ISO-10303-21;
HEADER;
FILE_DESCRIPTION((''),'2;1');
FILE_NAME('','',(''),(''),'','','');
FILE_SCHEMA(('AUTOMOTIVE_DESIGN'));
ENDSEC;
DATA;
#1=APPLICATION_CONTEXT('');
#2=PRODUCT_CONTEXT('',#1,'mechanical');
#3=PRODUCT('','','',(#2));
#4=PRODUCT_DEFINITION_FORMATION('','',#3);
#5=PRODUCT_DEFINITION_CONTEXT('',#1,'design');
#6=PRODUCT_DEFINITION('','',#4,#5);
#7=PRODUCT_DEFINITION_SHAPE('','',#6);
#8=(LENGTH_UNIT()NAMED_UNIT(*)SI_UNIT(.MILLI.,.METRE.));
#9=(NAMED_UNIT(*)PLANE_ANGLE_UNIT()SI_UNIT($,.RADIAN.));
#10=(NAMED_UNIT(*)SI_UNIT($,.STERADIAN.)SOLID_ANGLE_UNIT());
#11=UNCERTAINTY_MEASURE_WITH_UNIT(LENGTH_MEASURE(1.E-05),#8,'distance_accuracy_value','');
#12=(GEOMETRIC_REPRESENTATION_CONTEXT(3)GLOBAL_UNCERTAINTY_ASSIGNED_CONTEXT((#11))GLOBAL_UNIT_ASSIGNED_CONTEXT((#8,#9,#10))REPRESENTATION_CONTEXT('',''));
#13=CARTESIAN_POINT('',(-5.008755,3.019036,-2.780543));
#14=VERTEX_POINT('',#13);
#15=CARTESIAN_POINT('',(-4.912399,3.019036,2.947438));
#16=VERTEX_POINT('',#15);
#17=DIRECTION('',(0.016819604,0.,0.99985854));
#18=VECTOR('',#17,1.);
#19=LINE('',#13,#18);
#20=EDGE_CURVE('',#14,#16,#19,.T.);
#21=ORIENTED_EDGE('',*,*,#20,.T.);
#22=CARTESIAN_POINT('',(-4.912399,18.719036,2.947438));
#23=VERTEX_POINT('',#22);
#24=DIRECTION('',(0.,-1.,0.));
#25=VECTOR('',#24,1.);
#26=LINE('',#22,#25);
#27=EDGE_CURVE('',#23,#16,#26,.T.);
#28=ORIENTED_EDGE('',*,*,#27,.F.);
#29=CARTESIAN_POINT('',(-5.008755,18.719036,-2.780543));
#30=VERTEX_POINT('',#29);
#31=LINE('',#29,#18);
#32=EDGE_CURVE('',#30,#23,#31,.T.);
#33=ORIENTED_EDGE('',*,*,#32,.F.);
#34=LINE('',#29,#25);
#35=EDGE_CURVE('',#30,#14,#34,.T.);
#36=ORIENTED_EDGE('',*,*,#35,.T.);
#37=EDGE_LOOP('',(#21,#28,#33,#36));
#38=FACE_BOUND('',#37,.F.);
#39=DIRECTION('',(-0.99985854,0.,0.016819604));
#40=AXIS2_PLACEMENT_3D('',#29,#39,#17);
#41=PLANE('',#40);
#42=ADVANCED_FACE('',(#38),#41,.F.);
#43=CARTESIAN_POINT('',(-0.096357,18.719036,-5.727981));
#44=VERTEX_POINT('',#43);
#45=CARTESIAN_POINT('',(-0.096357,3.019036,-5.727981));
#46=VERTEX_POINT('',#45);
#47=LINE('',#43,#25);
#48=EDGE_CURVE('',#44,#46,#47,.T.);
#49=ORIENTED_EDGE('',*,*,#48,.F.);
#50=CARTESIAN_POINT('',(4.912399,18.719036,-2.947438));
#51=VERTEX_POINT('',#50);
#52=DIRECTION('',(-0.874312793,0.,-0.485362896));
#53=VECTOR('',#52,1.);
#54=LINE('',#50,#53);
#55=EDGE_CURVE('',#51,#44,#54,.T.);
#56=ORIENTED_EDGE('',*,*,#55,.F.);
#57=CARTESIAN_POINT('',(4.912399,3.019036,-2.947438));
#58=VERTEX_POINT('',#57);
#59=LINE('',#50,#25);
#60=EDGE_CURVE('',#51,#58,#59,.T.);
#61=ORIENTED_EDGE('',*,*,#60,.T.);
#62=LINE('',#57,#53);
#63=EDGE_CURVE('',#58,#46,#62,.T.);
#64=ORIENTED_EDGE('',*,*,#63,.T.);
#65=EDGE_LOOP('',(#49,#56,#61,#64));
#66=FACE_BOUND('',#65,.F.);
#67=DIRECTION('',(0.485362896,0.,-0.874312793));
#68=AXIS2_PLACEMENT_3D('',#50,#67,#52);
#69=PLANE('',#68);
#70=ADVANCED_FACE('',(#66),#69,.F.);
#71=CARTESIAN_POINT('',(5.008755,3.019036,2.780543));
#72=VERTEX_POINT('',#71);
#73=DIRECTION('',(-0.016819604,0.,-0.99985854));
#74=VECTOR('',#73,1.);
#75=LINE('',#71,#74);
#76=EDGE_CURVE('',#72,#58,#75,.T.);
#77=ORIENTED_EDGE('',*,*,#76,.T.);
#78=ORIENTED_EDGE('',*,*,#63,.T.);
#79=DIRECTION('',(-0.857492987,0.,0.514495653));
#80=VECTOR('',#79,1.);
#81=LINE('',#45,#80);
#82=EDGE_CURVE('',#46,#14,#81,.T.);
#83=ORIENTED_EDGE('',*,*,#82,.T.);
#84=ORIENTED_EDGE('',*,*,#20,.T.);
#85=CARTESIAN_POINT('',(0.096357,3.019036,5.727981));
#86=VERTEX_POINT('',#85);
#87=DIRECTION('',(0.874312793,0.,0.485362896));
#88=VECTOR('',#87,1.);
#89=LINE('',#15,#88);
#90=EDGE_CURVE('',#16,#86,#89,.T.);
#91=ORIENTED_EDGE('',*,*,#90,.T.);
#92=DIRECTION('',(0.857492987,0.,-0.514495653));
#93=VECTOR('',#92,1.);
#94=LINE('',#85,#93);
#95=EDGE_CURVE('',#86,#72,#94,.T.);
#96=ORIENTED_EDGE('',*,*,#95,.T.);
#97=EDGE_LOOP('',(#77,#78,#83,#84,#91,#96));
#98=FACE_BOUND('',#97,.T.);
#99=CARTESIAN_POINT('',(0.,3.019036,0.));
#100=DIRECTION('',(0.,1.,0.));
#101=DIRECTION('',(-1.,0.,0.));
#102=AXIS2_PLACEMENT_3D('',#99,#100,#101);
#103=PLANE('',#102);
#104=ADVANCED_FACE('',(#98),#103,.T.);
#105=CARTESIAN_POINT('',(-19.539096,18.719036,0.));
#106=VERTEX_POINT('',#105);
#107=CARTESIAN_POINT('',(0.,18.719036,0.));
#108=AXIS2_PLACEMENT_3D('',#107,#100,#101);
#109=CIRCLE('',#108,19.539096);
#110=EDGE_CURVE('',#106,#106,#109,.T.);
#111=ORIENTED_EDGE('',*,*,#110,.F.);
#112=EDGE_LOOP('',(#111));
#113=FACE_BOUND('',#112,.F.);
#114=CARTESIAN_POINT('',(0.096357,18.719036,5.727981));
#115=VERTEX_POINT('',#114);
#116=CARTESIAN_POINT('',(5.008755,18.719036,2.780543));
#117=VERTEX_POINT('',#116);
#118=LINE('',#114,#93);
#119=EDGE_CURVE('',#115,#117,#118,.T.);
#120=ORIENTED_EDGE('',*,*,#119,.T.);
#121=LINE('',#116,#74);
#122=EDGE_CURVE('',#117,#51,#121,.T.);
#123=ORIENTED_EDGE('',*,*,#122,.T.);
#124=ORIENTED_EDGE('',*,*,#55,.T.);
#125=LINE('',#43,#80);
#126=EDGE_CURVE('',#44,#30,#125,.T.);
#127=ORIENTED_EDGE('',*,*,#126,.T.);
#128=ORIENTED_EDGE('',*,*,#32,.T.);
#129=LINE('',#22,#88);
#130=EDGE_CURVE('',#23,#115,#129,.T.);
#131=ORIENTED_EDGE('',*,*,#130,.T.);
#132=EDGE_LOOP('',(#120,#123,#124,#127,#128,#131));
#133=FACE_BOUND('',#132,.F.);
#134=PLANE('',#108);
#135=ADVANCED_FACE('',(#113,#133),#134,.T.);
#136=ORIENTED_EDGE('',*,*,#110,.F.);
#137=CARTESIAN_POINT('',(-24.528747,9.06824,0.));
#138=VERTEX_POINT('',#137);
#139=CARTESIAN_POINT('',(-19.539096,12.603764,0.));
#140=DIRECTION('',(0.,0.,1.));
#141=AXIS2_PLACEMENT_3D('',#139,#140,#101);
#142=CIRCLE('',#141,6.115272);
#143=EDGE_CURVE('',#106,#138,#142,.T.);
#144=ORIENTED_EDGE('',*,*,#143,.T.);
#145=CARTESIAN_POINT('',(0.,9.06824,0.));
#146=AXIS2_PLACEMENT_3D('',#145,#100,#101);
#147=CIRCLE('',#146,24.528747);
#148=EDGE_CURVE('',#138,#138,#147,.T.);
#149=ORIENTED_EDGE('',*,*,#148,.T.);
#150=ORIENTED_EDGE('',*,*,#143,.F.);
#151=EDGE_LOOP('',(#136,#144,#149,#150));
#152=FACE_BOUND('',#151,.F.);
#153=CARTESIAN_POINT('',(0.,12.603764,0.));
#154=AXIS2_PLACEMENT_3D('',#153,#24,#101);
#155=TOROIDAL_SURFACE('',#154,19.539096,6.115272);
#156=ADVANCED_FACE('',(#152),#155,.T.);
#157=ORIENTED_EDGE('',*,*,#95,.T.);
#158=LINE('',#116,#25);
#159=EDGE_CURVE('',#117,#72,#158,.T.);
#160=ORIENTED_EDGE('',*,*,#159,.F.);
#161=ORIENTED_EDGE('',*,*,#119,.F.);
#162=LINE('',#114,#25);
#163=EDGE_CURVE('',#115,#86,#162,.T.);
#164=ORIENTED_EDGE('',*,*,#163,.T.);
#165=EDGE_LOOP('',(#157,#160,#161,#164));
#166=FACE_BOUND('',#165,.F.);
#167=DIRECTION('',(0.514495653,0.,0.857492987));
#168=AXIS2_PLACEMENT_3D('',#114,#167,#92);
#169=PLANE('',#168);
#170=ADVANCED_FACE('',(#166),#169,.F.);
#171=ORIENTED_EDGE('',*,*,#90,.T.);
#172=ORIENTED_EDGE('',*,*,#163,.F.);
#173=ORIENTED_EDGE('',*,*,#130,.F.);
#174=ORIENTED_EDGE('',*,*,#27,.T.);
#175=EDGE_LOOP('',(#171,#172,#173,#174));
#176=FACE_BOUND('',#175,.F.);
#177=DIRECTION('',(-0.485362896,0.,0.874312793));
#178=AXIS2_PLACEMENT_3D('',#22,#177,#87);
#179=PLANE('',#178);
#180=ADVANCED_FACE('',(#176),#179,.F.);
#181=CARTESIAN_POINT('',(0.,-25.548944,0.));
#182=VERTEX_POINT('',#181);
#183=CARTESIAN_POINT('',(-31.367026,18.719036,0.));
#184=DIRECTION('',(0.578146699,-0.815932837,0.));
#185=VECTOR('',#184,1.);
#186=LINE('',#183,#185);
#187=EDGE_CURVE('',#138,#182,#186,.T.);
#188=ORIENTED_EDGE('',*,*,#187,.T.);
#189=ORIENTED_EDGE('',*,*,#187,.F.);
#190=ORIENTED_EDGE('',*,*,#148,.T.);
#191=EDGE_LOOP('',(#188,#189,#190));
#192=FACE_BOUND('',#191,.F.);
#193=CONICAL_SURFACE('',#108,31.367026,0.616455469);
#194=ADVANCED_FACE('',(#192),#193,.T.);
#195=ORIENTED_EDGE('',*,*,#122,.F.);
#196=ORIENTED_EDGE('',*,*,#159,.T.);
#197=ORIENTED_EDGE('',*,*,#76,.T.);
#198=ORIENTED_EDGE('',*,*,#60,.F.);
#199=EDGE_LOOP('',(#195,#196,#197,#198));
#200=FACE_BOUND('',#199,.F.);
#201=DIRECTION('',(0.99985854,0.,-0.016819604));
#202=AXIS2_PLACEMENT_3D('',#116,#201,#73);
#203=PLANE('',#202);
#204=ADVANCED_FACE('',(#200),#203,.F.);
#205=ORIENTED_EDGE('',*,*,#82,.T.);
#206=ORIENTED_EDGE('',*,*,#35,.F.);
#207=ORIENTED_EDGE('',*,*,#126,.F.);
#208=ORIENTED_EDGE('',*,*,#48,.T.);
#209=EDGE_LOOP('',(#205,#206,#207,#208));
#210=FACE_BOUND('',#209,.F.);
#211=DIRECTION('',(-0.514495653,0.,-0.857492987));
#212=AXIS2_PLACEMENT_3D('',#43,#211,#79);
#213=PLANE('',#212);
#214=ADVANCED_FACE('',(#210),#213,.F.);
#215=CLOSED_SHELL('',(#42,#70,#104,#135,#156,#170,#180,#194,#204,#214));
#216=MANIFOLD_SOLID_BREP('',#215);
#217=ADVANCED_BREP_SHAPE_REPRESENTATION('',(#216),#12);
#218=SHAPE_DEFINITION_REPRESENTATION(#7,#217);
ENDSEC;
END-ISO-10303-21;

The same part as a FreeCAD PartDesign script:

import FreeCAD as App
import Part
import Sketcher

V = App.Vector
Q = App.Units.Quantity


def edges_at(feature, points):
    """Names of the edges that pass closest to the given points."""
    edges = feature.Shape.Edges
    near = lambda p: min(range(len(edges)), key=lambda i: edges[i].distToShape(Part.Vertex(*p))[0])
    return sorted({f"Edge{near(p) + 1}" for p in points})


def add_polygon(sketch, points):
    """Adds a closed chain of lines whose ends are joined by coincident constraints."""
    first, n = sketch.GeometryCount, len(points)
    for a, b in zip(points, points[1:] + points[:1]):
        sketch.addGeometry(Part.LineSegment(App.Vector(*a, 0), App.Vector(*b, 0)), False)
    for i in range(n):
        sketch.addConstraint(Sketcher.Constraint("Coincident", first + i, 2, first + (i + 1) % n, 1))

doc = App.newDocument("Part")
body = doc.addObject("PartDesign::Body", "Body")

# Sketch on XY plane
sketch1 = body.newObject("Sketcher::SketchObject", "Sketch")
sketch1.AttachmentSupport = (doc.getObject("XY_Plane"), [""])
sketch1.MapMode = "FlatFace"
add_polygon(sketch1, [(0, -26), (0, 19), (-31, 19)])  # lines 0-2
sketch1.addConstraint([
    Sketcher.Constraint("Vertical", 0),
    Sketcher.Constraint("Horizontal", 1),
    Sketcher.Constraint("PointOnObject", 0, 2, -2),
    Sketcher.Constraint("DistanceY", 0, 1, 0, 2, Q("44.26798 mm")),
    Sketcher.Constraint("Distance", 2, Q("54.254441 mm")),
    Sketcher.Constraint("DistanceY", -1, 1, 0, 2, Q("18.719036 mm")),
])
revolution = body.newObject("PartDesign::Revolution", "Revolution")
revolution.Profile = sketch1
revolution.ReferenceAxis = (sketch1, ["V_Axis"])
revolution.Angle = 360
doc.recompute()

fillet = body.newObject("PartDesign::Fillet", "Fillet")
fillet.Base = (revolution, edges_at(revolution, [(31.367, 18.719, 0)]))
fillet.Radius = 6.115272

# Sketch on XZ plane
sketch2 = body.newObject("Sketcher::SketchObject", "Sketch001")
sketch2.AttachmentSupport = (doc.getObject("XZ_Plane"), [""])
sketch2.MapMode = "FlatFace"
sketch2.AttachmentOffset = App.Placement(V(0, 0, -18.719036), App.Rotation())
add_polygon(sketch2, [(0, 6), (5, 3), (5, -3), (0, -6), (-5, -3), (-5, 3)])  # lines 0-5
sketch2.addConstraint([
    Sketcher.Constraint("Symmetric", 0, 2, 3, 2, -1, 1),
    Sketcher.Constraint("Symmetric", 1, 2, 4, 2, -1, 1),
    Sketcher.Constraint("Symmetric", 2, 2, 5, 2, -1, 1),
    Sketcher.Constraint("Equal", 0, 1),
    Sketcher.Constraint("Equal", 1, 2),
    Sketcher.Constraint("DistanceX", -1, 1, 1, 2, Q("4.912399 mm")),
    Sketcher.Constraint("Distance", 0, Q("5.728791 mm")),
    Sketcher.Constraint("DistanceY", 1, 2, -1, 1, Q("2.947438 mm")),
    Sketcher.Constraint("DistanceY", 2, 2, -1, 1, Q("5.727981 mm")),
])
pocket1 = body.newObject("PartDesign::Pocket", "Pocket")
pocket1.Profile = sketch2
pocket1.Length = 15.7
pocket1.Reversed = True

doc.recompute()
